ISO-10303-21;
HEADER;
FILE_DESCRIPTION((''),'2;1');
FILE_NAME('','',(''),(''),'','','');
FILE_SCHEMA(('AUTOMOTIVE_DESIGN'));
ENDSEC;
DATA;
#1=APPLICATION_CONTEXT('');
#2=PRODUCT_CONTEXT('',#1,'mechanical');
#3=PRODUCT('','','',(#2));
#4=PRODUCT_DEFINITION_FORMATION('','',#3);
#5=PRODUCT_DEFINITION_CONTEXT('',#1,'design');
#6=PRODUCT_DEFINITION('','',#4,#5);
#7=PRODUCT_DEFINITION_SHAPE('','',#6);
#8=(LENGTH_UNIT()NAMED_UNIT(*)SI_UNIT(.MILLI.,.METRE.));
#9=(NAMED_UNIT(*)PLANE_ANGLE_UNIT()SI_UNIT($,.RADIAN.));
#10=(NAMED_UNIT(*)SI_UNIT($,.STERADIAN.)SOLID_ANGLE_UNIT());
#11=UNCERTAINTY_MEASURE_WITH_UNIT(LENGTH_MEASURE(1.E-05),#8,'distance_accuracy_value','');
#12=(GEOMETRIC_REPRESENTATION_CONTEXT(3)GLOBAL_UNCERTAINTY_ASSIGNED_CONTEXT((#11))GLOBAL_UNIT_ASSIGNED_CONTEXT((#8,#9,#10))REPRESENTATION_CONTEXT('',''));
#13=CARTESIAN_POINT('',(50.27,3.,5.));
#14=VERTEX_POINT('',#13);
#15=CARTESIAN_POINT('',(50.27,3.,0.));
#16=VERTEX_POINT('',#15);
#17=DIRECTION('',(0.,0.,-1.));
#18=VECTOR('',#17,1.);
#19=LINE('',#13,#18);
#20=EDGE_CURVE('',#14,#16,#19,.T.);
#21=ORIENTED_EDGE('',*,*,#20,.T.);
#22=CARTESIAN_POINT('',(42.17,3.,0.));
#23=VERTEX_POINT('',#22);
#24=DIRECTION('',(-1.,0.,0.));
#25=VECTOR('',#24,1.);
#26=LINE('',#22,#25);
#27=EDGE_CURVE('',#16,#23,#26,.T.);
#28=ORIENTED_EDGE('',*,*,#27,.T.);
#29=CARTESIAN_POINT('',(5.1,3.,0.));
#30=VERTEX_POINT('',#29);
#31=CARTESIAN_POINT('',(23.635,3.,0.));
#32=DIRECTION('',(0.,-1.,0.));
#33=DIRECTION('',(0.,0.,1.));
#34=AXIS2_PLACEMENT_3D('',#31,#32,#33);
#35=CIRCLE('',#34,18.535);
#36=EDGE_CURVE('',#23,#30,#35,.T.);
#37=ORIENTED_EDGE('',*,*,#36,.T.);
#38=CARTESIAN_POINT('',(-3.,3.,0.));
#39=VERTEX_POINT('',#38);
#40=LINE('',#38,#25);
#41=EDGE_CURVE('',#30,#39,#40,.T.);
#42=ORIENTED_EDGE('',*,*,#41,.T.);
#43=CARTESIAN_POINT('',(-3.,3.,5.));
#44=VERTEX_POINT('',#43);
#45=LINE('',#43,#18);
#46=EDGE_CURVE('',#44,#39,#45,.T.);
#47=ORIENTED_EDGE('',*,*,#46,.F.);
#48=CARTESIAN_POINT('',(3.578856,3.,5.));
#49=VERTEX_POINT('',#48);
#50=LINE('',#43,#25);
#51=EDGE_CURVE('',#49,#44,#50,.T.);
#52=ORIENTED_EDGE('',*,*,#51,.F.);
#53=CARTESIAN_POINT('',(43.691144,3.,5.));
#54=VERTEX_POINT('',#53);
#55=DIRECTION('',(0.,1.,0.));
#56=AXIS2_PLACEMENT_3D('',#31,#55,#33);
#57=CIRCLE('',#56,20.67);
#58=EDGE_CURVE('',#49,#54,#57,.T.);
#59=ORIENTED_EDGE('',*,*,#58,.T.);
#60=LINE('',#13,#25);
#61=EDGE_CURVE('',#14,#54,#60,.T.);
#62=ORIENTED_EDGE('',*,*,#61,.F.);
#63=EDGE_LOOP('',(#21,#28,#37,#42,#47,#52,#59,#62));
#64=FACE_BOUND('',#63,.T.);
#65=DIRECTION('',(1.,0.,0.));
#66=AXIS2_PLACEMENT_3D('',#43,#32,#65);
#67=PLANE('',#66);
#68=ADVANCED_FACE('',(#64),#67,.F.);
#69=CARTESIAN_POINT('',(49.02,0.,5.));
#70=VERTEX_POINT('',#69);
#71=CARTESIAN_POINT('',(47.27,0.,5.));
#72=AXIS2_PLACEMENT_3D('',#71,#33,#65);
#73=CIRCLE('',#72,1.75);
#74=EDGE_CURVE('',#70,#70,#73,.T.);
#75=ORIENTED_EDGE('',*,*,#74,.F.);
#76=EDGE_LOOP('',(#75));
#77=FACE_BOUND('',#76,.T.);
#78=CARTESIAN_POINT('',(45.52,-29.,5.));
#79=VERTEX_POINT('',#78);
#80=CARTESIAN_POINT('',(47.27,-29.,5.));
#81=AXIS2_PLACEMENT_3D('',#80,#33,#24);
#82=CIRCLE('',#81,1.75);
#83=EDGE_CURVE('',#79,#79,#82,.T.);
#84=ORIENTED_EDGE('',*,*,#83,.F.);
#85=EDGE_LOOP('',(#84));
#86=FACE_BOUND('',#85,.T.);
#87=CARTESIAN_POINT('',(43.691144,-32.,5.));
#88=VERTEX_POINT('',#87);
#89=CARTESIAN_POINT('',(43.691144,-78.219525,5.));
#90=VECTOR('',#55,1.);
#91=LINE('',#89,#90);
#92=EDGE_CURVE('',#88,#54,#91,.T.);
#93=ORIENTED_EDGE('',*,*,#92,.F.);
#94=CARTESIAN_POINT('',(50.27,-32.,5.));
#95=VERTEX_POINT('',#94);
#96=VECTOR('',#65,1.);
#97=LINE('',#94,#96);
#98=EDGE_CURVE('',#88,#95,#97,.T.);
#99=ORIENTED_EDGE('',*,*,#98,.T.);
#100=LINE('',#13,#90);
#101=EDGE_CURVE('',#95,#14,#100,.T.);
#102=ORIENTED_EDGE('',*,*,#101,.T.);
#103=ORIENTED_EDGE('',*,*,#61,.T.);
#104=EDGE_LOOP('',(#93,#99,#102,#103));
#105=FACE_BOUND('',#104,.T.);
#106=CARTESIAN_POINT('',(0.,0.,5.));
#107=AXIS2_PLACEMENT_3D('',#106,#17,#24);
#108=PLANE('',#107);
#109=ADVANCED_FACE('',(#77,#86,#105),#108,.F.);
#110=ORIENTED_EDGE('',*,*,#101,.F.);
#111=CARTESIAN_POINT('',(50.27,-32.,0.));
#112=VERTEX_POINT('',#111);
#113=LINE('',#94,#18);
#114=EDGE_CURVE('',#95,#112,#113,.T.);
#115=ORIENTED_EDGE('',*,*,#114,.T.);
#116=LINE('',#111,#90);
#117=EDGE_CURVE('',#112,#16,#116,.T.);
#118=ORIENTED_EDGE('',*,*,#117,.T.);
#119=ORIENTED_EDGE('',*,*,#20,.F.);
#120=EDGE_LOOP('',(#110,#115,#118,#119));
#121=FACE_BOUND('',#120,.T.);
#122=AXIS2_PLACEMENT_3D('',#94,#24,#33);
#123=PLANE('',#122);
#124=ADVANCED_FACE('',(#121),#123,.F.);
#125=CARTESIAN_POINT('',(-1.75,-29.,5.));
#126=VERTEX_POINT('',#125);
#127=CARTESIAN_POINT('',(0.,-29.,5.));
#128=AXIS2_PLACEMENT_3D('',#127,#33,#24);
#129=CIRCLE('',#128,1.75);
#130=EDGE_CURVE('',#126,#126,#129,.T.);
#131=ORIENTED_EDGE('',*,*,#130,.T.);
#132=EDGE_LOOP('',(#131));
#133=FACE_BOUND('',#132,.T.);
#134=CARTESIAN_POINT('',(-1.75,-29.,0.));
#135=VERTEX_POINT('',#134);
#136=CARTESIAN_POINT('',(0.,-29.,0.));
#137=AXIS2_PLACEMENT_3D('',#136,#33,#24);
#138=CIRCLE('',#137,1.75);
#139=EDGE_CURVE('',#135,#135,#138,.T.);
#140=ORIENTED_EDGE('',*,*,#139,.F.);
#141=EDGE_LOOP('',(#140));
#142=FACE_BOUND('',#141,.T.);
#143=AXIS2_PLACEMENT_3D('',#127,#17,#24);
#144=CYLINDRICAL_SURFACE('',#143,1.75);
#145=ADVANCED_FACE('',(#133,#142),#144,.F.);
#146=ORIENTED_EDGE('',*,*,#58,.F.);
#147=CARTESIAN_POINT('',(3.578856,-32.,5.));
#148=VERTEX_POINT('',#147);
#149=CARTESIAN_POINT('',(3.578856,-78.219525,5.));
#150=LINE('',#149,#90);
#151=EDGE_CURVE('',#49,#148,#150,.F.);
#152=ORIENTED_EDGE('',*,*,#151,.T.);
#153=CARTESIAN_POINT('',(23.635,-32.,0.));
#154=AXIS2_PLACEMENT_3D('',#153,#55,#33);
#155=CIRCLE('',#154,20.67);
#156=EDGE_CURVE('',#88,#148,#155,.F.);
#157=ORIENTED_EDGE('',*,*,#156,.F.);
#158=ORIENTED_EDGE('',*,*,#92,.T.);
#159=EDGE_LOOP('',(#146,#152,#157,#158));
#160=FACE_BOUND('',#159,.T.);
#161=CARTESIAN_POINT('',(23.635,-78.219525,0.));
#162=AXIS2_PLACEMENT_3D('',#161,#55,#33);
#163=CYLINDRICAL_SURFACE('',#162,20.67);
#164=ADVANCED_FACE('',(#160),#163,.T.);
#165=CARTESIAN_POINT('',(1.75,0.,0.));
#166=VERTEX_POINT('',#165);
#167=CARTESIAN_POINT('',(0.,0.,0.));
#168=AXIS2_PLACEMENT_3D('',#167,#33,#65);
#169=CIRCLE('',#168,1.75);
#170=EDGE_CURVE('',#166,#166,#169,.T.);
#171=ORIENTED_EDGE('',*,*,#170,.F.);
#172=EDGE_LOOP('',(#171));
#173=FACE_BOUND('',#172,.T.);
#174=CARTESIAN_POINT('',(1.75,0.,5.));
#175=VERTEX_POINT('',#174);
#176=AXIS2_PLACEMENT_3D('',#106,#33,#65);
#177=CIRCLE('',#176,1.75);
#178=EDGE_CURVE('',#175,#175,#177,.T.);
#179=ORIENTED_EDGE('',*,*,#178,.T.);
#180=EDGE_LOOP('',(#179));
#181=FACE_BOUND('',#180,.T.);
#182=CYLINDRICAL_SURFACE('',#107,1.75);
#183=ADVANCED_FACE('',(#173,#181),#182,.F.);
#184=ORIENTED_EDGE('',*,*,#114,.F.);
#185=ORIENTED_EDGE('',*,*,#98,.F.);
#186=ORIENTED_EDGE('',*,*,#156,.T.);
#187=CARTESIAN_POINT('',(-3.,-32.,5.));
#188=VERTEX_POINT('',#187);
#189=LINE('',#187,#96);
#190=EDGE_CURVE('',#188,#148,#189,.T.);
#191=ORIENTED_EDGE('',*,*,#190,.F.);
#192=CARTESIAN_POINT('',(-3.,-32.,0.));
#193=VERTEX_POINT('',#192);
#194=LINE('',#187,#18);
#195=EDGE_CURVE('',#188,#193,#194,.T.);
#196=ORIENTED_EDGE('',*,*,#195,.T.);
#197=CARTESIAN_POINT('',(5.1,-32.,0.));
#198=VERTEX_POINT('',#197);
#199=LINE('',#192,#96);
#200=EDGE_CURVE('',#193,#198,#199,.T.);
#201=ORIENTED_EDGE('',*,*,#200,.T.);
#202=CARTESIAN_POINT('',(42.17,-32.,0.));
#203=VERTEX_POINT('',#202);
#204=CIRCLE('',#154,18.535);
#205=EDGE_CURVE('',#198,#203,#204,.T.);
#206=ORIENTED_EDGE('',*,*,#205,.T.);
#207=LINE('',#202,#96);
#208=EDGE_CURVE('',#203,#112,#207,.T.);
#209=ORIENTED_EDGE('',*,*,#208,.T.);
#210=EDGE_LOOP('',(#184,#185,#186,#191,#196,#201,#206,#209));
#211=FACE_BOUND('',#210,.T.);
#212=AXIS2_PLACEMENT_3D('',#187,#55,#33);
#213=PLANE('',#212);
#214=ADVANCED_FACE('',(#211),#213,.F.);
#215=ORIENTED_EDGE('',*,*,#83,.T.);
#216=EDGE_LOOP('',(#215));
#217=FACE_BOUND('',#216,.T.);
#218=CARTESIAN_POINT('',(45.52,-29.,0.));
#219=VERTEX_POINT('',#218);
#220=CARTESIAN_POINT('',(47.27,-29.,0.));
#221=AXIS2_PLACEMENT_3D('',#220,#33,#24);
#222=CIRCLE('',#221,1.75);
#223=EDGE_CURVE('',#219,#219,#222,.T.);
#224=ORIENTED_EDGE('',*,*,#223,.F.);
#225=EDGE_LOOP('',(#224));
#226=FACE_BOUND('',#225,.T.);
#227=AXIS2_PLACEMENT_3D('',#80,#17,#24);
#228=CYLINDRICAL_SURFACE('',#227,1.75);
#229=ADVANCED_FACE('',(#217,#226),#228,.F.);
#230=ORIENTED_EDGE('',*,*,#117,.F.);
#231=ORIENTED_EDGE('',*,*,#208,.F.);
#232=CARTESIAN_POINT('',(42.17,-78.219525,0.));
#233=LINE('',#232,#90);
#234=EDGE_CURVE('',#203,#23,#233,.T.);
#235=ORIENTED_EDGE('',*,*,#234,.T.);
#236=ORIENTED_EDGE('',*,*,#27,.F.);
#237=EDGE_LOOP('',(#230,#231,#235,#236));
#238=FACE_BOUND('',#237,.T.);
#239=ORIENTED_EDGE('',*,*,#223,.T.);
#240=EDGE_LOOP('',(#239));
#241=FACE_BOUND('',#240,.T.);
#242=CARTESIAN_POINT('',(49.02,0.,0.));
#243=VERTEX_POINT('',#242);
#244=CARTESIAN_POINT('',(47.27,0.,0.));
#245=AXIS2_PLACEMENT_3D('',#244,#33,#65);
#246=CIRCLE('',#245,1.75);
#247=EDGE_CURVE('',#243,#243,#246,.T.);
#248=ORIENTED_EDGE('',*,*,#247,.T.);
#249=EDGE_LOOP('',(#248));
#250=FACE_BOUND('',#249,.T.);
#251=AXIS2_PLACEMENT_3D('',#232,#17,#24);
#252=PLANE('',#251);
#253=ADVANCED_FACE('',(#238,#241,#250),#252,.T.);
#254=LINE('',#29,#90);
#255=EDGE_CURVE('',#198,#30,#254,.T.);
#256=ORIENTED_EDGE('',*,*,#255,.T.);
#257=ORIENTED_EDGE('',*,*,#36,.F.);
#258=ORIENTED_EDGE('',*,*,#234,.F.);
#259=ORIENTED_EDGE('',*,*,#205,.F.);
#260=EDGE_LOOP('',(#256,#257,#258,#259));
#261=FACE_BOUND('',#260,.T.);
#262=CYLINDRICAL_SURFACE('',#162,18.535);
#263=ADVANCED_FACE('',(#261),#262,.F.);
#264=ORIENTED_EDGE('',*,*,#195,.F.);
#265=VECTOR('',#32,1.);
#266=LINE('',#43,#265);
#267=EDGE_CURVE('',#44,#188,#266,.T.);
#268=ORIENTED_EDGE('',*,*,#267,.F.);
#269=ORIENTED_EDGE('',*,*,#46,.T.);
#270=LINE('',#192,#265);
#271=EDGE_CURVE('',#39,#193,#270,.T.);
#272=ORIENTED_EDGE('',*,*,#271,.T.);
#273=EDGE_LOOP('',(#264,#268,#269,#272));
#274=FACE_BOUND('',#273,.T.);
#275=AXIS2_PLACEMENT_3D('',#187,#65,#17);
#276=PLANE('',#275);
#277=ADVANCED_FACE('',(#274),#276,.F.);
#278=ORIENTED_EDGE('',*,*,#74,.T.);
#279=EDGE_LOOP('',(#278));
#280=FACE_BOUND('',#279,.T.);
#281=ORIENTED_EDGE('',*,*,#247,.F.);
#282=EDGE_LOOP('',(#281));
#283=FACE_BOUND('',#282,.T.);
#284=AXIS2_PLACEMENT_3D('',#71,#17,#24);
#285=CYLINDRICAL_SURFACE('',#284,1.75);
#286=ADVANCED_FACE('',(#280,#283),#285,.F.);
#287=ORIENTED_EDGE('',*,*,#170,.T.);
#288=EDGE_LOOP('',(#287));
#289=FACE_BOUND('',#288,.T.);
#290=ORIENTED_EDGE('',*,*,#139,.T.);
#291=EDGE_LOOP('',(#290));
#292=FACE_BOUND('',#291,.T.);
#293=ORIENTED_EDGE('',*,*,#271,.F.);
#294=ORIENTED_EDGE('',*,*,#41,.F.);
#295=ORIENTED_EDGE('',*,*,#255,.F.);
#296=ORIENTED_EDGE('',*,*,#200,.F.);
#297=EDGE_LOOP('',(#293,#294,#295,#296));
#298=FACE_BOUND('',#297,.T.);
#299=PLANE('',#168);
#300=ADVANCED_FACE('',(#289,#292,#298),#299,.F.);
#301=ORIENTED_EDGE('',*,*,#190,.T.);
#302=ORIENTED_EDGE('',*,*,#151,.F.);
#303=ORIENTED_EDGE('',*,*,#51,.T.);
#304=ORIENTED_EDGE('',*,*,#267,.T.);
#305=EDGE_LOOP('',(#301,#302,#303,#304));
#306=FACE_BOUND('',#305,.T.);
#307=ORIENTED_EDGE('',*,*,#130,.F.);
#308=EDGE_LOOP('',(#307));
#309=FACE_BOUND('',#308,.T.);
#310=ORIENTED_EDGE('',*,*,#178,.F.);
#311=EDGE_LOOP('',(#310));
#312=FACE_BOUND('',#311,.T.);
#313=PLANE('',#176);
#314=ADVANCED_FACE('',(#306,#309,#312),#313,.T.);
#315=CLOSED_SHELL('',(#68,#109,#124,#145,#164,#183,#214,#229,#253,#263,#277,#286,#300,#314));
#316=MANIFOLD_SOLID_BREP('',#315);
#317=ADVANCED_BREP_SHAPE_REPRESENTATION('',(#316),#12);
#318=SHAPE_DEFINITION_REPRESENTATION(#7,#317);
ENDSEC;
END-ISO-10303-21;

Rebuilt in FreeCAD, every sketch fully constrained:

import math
import FreeCAD as App
import Part
import Sketcher

V = App.Vector

doc = App.newDocument("Part")
body = doc.addObject("PartDesign::Body", "Body")

# Sketch on XY plane
sketch1 = body.newObject("Sketcher::SketchObject", "Sketch")
sketch1.AttachmentSupport = (doc.getObject("XY_Plane"), [""])
sketch1.MapMode = "FlatFace"
sketch1.addGeometry([
    Part.LineSegment(V(5.1, 3, 0), V(-3, 3, 0)),  # 0
    Part.LineSegment(V(-3, 3, 0), V(-3, -32, 0)),  # 1
    Part.LineSegment(V(-3, -32, 0), V(5.1, -32, 0)),  # 2
    Part.LineSegment(V(5.1, -32, 0), V(5.1, 3, 0)),  # 3
    Part.Circle(V(0, -29, 0), V(0, 0, 1), 1.75),  # 4
    Part.Circle(V(0, 0, 0), V(0, 0, 1), 1.75),  # 5
], False)
sketch1.addConstraint([
    Sketcher.Constraint("Coincident", 0, 2, 1, 1),
    Sketcher.Constraint("Coincident", 1, 2, 2, 1),
    Sketcher.Constraint("Coincident", 2, 2, 3, 1),
    Sketcher.Constraint("Coincident", 3, 2, 0, 1),
    Sketcher.Constraint("Horizontal", 0),
    Sketcher.Constraint("Vertical", 1),
    Sketcher.Constraint("Horizontal", 2),
    Sketcher.Constraint("Vertical", 3),
    Sketcher.Constraint("Coincident", 5, 3, -1, 1),
    Sketcher.Constraint("Equal", 4, 5),
    Sketcher.Constraint("PointOnObject", 4, 3, -2),
    Sketcher.Constraint("Diameter", 4, 3.5),
    Sketcher.Constraint("DistanceY", 1, 2, 1, 1, 35.0),
    Sketcher.Constraint("DistanceX", 0, 2, 0, 1, 8.1),
    Sketcher.Constraint("DistanceY", 4, 3, -1, 1, 29.0),
    Sketcher.Constraint("DistanceX", 0, 2, -1, 1, 3.0),
    Sketcher.Constraint("DistanceY", -1, 1, 0, 2, 3.0),
])
pad1 = body.newObject("PartDesign::Pad", "Pad")
pad1.Profile = sketch1
pad1.Length = 5
body2 = doc.addObject("PartDesign::Body", "Body001")

# Sketch on XY plane
sketch2 = body2.newObject("Sketcher::SketchObject", "Sketch001")
sketch2.AttachmentSupport = (doc.getObject("XY_Plane001"), [""])
sketch2.MapMode = "FlatFace"
sketch2.addGeometry([
    Part.LineSegment(V(50.27, 3, 0), V(42.17, 3, 0)),  # 0
    Part.LineSegment(V(42.17, 3, 0), V(42.17, -32, 0)),  # 1
    Part.LineSegment(V(42.17, -32, 0), V(50.27, -32, 0)),  # 2
    Part.LineSegment(V(50.27, -32, 0), V(50.27, 3, 0)),  # 3
    Part.Circle(V(47.27, -29, 0), V(0, 0, 1), 1.75),  # 4
    Part.Circle(V(47.27, 0, 0), V(0, 0, 1), 1.75),  # 5
], False)
sketch2.addConstraint([
    Sketcher.Constraint("Coincident", 0, 2, 1, 1),
    Sketcher.Constraint("Coincident", 1, 2, 2, 1),
    Sketcher.Constraint("Coincident", 2, 2, 3, 1),
    Sketcher.Constraint("Coincident", 3, 2, 0, 1),
    Sketcher.Constraint("Horizontal", 0),
    Sketcher.Constraint("Vertical", 1),
    Sketcher.Constraint("Horizontal", 2),
    Sketcher.Constraint("Vertical", 3),
    Sketcher.Constraint("Equal", 4, 5),
    Sketcher.Constraint("PointOnObject", 5, 3, -1),
    Sketcher.Constraint("Vertical", 4, 3, 5, 3),
    Sketcher.Constraint("Diameter", 4, 3.5),
    Sketcher.Constraint("DistanceY", 1, 2, 1, 1, 35.0),
    Sketcher.Constraint("DistanceX", 0, 2, 0, 1, 8.1),
    Sketcher.Constraint("DistanceY", 4, 3, -1, 1, 29.0),
    Sketcher.Constraint("DistanceY", -1, 1, 0, 2, 3.0),
    Sketcher.Constraint("DistanceX", 4, 3, 2, 2, 3.0),
    Sketcher.Constraint("DistanceX", -1, 1, 4, 3, 47.27),
])
pad2 = body2.newObject("PartDesign::Pad", "Pad001")
pad2.Profile = sketch2
pad2.Length = 5
body.AllowCompound = True
doc.recompute()

boolean = body.newObject("PartDesign::Boolean", "Boolean")
boolean.Type = "Fuse"
boolean.addObjects([body2])

# Sketch on XY plane
sketch3 = body.newObject("Sketcher::SketchObject", "Sketch002")
sketch3.AttachmentSupport = (doc.getObject("XY_Plane"), [""])
sketch3.MapMode = "FlatFace"
sketch3.addGeometry([
    Part.LineSegment(V(5.1, 3, 0), V(-3, 3, 0)),  # 0
    Part.LineSegment(V(-3, 3, 0), V(-3, -32, 0)),  # 1
    Part.LineSegment(V(-3, -32, 0), V(5.1, -32, 0)),  # 2
    Part.LineSegment(V(5.1, -32, 0), V(5.1, 3, 0)),  # 3
    Part.Circle(V(0, -29, 0), V(0, 0, 1), 1.75),  # 4
    Part.Circle(V(0, 0, 0), V(0, 0, 1), 1.75),  # 5
    Part.LineSegment(V(50.27, 3, 0), V(42.17, 3, 0)),  # 6
    Part.LineSegment(V(42.17, 3, 0), V(42.17, -32, 0)),  # 7
    Part.LineSegment(V(42.17, -32, 0), V(50.27, -32, 0)),  # 8
    Part.LineSegment(V(50.27, -32, 0), V(50.27, 3, 0)),  # 9
    Part.Circle(V(47.27, -29, 0), V(0, 0, 1), 1.75),  # 10
    Part.Circle(V(47.27, 0, 0), V(0, 0, 1), 1.75),  # 11
], False)
sketch3.addConstraint([
    Sketcher.Constraint("Coincident", 0, 2, 1, 1),
    Sketcher.Constraint("Coincident", 1, 2, 2, 1),
    Sketcher.Constraint("Coincident", 2, 2, 3, 1),
    Sketcher.Constraint("Coincident", 3, 2, 0, 1),
    Sketcher.Constraint("Coincident", 6, 2, 7, 1),
    Sketcher.Constraint("Coincident", 7, 2, 8, 1),
    Sketcher.Constraint("Coincident", 8, 2, 9, 1),
    Sketcher.Constraint("Coincident", 9, 2, 6, 1),
    Sketcher.Constraint("Horizontal", 0),
    Sketcher.Constraint("Vertical", 1),
    Sketcher.Constraint("Horizontal", 2),
    Sketcher.Constraint("Vertical", 3),
    Sketcher.Constraint("Horizontal", 6),
    Sketcher.Constraint("Vertical", 7),
    Sketcher.Constraint("Horizontal", 8),
    Sketcher.Constraint("Vertical", 9),
    Sketcher.Constraint("Coincident", 5, 3, -1, 1),
    Sketcher.Constraint("Equal", 4, 5),
    Sketcher.Constraint("Equal", 5, 10),
    Sketcher.Constraint("Equal", 10, 11),
    Sketcher.Constraint("PointOnObject", 4, 3, -2),
    Sketcher.Constraint("PointOnObject", 11, 3, -1),
    Sketcher.Constraint("Horizontal", 4, 3, 10, 3),
    Sketcher.Constraint("Horizontal", 3, 2, 6, 2),
    Sketcher.Constraint("Horizontal", 2, 2, 7, 2),
    Sketcher.Constraint("Vertical", 10, 3, 11, 3),
    Sketcher.Constraint("Equal", 2, 6),
    Sketcher.Constraint("Diameter", 4, 3.5),
    Sketcher.Constraint("DistanceY", 1, 2, 1, 1, 35.0),
    Sketcher.Constraint("DistanceX", 0, 2, 0, 1, 8.1),
    Sketcher.Constraint("DistanceY", 4, 3, -1, 1, 29.0),
    Sketcher.Constraint("DistanceX", 0, 2, -1, 1, 3.0),
    Sketcher.Constraint("DistanceY", -1, 1, 0, 2, 3.0),
    Sketcher.Constraint("DistanceX", 10, 3, 8, 2, 3.0),
    Sketcher.Constraint("DistanceX", -1, 1, 10, 3, 47.27),
])
pad3 = body.newObject("PartDesign::Pad", "Pad002")
pad3.Profile = sketch3
pad3.Length = 5

# Sketch on XZ plane
sketch4 = body.newObject("Sketcher::SketchObject", "Sketch003")
sketch4.AttachmentSupport = (doc.getObject("XZ_Plane"), [""])
sketch4.MapMode = "FlatFace"
sketch4.AttachmentOffset = App.Placement(V(0, 0, -3), App.Rotation())
sketch4.addGeometry([
    Part.LineSegment(V(44.305, 0, 0), V(42.17, 0, 0)),
    Part.ArcOfCircle(Part.Circle(V(23.635, 0, 0), V(0, 0, 1), 18.535), math.radians(0), math.radians(180)),
    Part.LineSegment(V(5.1, 0, 0), V(2.965, 0, 0)),
    Part.ArcOfCircle(Part.Circle(V(23.635, 0, 0), V(0, 0, 1), 20.67), math.radians(0), math.radians(180)),
], False)
sketch4.addConstraint([
    Sketcher.Constraint("Coincident", 0, 2, 1, 1),
    Sketcher.Constraint("Coincident", 1, 2, 2, 1),
    Sketcher.Constraint("Coincident", 2, 2, 3, 2),
    Sketcher.Constraint("Coincident", 3, 1, 0, 1),
    Sketcher.Constraint("Horizontal", 0),
    Sketcher.Constraint("Horizontal", 2),
    Sketcher.Constraint("Coincident", 3, 3, 1, 3),
    Sketcher.Constraint("PointOnObject", 1, 3, -1),
    Sketcher.Constraint("PointOnObject", 0, 2, -1),
    Sketcher.Constraint("PointOnObject", 1, 2, -1),
    Sketcher.Constraint("Radius", 3, 20.67),
    Sketcher.Constraint("Radius", 1, 18.535),
    Sketcher.Constraint("DistanceX", -1, 1, 1, 2, 5.1),
])
pad4 = body.newObject("PartDesign::Pad", "Pad003")
pad4.Profile = sketch4
pad4.Length = 35

doc.recompute()
